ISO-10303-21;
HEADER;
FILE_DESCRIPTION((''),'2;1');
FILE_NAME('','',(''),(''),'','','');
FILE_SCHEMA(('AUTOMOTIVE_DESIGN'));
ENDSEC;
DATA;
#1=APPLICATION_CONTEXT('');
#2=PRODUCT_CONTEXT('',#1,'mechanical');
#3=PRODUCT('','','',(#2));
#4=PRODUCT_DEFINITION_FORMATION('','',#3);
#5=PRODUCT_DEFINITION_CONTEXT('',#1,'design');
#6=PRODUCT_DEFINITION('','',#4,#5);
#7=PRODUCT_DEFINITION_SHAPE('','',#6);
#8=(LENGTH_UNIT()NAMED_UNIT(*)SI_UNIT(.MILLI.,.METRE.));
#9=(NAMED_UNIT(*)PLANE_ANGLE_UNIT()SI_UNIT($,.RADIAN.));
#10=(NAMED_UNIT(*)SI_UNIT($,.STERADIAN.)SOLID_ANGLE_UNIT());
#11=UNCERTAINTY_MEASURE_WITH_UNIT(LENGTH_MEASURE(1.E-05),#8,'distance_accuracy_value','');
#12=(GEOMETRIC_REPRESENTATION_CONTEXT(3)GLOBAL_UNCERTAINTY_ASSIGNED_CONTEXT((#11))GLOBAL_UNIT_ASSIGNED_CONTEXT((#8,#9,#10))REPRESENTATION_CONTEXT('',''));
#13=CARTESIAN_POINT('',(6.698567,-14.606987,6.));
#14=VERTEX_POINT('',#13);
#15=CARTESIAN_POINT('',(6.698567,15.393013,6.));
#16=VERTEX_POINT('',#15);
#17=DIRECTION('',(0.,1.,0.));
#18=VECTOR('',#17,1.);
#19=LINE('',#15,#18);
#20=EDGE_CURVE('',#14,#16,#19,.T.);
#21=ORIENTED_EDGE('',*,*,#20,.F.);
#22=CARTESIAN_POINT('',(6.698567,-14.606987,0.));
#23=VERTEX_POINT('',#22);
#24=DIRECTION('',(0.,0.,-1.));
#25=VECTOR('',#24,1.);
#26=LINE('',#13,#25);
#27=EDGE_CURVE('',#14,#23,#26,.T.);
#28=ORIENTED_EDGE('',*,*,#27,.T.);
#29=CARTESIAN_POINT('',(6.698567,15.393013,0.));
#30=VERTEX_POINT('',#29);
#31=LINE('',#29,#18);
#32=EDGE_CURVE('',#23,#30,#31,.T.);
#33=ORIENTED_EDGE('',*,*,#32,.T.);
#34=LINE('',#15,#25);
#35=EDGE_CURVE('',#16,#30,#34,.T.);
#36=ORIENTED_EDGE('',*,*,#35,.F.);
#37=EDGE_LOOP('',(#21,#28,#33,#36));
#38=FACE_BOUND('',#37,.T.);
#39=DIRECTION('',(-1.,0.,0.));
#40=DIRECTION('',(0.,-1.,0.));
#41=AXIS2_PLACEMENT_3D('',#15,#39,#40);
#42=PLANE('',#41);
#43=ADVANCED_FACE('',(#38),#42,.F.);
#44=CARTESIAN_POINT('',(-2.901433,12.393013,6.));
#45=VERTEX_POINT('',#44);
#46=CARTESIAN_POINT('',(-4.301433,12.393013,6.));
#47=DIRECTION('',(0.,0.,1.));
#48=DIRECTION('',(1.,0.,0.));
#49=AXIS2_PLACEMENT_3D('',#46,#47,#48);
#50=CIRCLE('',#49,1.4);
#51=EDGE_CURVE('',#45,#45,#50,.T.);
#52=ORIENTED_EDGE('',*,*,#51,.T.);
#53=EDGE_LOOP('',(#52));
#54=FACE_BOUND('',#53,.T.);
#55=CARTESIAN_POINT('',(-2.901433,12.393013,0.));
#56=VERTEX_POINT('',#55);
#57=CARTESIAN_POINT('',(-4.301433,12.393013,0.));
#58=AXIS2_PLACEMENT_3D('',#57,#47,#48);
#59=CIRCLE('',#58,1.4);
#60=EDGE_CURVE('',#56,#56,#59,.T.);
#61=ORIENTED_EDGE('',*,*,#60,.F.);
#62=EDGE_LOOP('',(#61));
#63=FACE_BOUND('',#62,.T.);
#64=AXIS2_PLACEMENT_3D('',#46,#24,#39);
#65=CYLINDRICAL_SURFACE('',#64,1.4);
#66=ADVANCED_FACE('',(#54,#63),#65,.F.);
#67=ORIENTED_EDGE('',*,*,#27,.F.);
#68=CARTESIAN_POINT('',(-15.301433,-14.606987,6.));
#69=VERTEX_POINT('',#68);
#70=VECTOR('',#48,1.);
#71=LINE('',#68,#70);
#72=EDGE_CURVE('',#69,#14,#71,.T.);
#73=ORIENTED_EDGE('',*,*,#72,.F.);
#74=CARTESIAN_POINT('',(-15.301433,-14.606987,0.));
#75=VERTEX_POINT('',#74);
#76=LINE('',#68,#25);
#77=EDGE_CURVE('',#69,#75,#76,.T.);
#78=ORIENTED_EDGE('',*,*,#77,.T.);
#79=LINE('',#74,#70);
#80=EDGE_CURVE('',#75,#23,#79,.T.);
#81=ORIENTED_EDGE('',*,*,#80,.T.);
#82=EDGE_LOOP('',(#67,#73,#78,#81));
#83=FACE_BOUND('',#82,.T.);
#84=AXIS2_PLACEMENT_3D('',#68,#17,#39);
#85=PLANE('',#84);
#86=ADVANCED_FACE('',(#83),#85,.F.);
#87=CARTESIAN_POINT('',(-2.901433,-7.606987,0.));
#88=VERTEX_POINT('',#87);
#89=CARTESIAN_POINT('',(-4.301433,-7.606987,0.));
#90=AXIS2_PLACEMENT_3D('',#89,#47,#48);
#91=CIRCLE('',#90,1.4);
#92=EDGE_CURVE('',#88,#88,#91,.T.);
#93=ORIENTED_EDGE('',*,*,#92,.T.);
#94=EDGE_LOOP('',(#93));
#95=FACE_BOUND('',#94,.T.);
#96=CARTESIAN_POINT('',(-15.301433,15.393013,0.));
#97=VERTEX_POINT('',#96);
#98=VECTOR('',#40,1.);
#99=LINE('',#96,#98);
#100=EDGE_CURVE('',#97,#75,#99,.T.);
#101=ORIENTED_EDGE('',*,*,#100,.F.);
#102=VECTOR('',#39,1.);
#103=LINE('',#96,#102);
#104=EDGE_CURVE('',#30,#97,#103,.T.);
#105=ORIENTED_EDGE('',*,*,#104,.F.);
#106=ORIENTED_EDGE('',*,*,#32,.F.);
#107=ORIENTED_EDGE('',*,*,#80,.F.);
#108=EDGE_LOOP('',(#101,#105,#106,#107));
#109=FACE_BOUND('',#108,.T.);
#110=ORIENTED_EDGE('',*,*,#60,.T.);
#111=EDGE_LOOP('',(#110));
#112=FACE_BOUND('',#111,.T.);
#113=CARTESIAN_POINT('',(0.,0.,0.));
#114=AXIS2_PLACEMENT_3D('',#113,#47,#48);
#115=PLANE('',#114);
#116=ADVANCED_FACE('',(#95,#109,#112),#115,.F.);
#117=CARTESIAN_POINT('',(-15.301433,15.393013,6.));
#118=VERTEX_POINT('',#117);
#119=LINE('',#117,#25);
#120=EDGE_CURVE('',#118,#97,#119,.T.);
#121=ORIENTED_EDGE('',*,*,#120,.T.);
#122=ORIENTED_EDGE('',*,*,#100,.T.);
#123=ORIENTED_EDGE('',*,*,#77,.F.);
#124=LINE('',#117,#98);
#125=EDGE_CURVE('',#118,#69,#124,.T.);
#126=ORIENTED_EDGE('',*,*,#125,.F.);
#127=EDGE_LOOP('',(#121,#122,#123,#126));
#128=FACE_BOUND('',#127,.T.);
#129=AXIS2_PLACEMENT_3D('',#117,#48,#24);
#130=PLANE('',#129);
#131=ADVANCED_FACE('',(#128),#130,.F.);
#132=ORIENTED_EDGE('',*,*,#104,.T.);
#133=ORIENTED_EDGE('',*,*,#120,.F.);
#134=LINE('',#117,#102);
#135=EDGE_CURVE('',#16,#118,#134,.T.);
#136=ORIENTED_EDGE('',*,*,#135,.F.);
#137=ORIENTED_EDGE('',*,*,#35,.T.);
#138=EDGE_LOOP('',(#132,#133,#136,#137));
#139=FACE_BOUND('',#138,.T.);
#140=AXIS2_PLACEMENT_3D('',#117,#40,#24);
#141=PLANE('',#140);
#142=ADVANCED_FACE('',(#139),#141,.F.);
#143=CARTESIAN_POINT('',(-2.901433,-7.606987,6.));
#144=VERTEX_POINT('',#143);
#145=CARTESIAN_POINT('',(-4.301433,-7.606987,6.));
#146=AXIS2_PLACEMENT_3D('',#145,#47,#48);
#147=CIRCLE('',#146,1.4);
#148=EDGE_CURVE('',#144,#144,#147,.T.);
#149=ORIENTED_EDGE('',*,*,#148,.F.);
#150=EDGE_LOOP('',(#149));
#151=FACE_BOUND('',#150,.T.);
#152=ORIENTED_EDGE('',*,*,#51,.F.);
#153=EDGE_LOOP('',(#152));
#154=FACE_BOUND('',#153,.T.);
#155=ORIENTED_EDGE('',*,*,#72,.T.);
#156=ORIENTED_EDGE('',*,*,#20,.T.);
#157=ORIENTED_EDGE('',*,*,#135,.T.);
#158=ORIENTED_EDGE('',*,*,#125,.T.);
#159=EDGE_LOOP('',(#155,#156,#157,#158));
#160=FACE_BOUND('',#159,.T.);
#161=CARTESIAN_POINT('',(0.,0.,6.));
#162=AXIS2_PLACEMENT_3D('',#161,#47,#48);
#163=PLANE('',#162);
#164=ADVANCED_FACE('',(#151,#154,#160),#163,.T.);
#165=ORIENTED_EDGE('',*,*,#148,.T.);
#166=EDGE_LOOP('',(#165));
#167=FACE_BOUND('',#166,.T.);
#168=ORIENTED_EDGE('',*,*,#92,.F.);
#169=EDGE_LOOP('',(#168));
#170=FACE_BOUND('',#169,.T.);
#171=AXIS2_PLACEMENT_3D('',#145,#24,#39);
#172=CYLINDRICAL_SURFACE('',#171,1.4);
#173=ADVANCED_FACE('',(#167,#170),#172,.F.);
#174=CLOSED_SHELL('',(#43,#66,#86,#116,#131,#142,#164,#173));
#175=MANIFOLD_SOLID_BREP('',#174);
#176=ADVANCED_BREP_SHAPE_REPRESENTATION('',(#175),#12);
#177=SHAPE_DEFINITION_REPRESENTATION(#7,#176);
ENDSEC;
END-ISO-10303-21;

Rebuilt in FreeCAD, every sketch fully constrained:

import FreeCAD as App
import Part
import Sketcher
Q = App.Units.Quantity

doc = App.newDocument("Part")
body = doc.addObject("PartDesign::Body", "Body")

# Sketch on XY plane
sketch1 = body.newObject("Sketcher::SketchObject", "Sketch")
sketch1.AttachmentSupport = (doc.getObject("XY_Plane"), [""])
sketch1.MapMode = "FlatFace"
sketch1.addGeometry([
    Part.LineSegment(App.Vector(-15.301433, 15.393013, 0), App.Vector(-15.301433, -14.606987, 0)),  # 0
    Part.LineSegment(App.Vector(-15.301433, -14.606987, 0), App.Vector(6.698567, -14.606987, 0)),  # 1
    Part.LineSegment(App.Vector(6.698567, -14.606987, 0), App.Vector(6.698567, 15.393013, 0)),  # 2
    Part.LineSegment(App.Vector(6.698567, 15.393013, 0), App.Vector(-15.301433, 15.393013, 0)),  # 3
    Part.Circle(App.Vector(-4.301433, -7.606987, 0), App.Vector(0, 0, 1), 1.4),  # 4
    Part.Circle(App.Vector(-4.301433, 12.393013, 0), App.Vector(0, 0, 1), 1.4),  # 5
], False)
sketch1.addConstraint([
    Sketcher.Constraint("Coincident", 0, 2, 1, 1),
    Sketcher.Constraint("Coincident", 1, 2, 2, 1),
    Sketcher.Constraint("Coincident", 2, 2, 3, 1),
    Sketcher.Constraint("Coincident", 3, 2, 0, 1),
    Sketcher.Constraint("Vertical", 0),
    Sketcher.Constraint("Horizontal", 1),
    Sketcher.Constraint("Vertical", 2),
    Sketcher.Constraint("Horizontal", 3),
    Sketcher.Constraint("Equal", 4, 5),
    Sketcher.Constraint("Vertical", 4, 3, 5, 3),
    Sketcher.Constraint("Diameter", 4, Q("2.8 mm")),
    Sketcher.Constraint("DistanceX", 1, 1, 1, 2, Q("22 mm")),
    Sketcher.Constraint("DistanceY", 0, 2, 0, 1, Q("30 mm")),
    Sketcher.Constraint("DistanceY", 4, 3, 5, 3, Q("20 mm")),
    Sketcher.Constraint("DistanceX", 0, 2, 4, 3, Q("11 mm")),
    Sketcher.Constraint("DistanceY", 0, 2, 4, 3, Q("7 mm")),
    Sketcher.Constraint("DistanceX", 4, 3, -1, 1, Q("4.301433 mm")),
    Sketcher.Constraint("DistanceY", 4, 3, -1, 1, Q("7.606987 mm")),
])
pad1 = body.newObject("PartDesign::Pad", "Pad")
pad1.Profile = sketch1
pad1.Length = 6

doc.recompute()
